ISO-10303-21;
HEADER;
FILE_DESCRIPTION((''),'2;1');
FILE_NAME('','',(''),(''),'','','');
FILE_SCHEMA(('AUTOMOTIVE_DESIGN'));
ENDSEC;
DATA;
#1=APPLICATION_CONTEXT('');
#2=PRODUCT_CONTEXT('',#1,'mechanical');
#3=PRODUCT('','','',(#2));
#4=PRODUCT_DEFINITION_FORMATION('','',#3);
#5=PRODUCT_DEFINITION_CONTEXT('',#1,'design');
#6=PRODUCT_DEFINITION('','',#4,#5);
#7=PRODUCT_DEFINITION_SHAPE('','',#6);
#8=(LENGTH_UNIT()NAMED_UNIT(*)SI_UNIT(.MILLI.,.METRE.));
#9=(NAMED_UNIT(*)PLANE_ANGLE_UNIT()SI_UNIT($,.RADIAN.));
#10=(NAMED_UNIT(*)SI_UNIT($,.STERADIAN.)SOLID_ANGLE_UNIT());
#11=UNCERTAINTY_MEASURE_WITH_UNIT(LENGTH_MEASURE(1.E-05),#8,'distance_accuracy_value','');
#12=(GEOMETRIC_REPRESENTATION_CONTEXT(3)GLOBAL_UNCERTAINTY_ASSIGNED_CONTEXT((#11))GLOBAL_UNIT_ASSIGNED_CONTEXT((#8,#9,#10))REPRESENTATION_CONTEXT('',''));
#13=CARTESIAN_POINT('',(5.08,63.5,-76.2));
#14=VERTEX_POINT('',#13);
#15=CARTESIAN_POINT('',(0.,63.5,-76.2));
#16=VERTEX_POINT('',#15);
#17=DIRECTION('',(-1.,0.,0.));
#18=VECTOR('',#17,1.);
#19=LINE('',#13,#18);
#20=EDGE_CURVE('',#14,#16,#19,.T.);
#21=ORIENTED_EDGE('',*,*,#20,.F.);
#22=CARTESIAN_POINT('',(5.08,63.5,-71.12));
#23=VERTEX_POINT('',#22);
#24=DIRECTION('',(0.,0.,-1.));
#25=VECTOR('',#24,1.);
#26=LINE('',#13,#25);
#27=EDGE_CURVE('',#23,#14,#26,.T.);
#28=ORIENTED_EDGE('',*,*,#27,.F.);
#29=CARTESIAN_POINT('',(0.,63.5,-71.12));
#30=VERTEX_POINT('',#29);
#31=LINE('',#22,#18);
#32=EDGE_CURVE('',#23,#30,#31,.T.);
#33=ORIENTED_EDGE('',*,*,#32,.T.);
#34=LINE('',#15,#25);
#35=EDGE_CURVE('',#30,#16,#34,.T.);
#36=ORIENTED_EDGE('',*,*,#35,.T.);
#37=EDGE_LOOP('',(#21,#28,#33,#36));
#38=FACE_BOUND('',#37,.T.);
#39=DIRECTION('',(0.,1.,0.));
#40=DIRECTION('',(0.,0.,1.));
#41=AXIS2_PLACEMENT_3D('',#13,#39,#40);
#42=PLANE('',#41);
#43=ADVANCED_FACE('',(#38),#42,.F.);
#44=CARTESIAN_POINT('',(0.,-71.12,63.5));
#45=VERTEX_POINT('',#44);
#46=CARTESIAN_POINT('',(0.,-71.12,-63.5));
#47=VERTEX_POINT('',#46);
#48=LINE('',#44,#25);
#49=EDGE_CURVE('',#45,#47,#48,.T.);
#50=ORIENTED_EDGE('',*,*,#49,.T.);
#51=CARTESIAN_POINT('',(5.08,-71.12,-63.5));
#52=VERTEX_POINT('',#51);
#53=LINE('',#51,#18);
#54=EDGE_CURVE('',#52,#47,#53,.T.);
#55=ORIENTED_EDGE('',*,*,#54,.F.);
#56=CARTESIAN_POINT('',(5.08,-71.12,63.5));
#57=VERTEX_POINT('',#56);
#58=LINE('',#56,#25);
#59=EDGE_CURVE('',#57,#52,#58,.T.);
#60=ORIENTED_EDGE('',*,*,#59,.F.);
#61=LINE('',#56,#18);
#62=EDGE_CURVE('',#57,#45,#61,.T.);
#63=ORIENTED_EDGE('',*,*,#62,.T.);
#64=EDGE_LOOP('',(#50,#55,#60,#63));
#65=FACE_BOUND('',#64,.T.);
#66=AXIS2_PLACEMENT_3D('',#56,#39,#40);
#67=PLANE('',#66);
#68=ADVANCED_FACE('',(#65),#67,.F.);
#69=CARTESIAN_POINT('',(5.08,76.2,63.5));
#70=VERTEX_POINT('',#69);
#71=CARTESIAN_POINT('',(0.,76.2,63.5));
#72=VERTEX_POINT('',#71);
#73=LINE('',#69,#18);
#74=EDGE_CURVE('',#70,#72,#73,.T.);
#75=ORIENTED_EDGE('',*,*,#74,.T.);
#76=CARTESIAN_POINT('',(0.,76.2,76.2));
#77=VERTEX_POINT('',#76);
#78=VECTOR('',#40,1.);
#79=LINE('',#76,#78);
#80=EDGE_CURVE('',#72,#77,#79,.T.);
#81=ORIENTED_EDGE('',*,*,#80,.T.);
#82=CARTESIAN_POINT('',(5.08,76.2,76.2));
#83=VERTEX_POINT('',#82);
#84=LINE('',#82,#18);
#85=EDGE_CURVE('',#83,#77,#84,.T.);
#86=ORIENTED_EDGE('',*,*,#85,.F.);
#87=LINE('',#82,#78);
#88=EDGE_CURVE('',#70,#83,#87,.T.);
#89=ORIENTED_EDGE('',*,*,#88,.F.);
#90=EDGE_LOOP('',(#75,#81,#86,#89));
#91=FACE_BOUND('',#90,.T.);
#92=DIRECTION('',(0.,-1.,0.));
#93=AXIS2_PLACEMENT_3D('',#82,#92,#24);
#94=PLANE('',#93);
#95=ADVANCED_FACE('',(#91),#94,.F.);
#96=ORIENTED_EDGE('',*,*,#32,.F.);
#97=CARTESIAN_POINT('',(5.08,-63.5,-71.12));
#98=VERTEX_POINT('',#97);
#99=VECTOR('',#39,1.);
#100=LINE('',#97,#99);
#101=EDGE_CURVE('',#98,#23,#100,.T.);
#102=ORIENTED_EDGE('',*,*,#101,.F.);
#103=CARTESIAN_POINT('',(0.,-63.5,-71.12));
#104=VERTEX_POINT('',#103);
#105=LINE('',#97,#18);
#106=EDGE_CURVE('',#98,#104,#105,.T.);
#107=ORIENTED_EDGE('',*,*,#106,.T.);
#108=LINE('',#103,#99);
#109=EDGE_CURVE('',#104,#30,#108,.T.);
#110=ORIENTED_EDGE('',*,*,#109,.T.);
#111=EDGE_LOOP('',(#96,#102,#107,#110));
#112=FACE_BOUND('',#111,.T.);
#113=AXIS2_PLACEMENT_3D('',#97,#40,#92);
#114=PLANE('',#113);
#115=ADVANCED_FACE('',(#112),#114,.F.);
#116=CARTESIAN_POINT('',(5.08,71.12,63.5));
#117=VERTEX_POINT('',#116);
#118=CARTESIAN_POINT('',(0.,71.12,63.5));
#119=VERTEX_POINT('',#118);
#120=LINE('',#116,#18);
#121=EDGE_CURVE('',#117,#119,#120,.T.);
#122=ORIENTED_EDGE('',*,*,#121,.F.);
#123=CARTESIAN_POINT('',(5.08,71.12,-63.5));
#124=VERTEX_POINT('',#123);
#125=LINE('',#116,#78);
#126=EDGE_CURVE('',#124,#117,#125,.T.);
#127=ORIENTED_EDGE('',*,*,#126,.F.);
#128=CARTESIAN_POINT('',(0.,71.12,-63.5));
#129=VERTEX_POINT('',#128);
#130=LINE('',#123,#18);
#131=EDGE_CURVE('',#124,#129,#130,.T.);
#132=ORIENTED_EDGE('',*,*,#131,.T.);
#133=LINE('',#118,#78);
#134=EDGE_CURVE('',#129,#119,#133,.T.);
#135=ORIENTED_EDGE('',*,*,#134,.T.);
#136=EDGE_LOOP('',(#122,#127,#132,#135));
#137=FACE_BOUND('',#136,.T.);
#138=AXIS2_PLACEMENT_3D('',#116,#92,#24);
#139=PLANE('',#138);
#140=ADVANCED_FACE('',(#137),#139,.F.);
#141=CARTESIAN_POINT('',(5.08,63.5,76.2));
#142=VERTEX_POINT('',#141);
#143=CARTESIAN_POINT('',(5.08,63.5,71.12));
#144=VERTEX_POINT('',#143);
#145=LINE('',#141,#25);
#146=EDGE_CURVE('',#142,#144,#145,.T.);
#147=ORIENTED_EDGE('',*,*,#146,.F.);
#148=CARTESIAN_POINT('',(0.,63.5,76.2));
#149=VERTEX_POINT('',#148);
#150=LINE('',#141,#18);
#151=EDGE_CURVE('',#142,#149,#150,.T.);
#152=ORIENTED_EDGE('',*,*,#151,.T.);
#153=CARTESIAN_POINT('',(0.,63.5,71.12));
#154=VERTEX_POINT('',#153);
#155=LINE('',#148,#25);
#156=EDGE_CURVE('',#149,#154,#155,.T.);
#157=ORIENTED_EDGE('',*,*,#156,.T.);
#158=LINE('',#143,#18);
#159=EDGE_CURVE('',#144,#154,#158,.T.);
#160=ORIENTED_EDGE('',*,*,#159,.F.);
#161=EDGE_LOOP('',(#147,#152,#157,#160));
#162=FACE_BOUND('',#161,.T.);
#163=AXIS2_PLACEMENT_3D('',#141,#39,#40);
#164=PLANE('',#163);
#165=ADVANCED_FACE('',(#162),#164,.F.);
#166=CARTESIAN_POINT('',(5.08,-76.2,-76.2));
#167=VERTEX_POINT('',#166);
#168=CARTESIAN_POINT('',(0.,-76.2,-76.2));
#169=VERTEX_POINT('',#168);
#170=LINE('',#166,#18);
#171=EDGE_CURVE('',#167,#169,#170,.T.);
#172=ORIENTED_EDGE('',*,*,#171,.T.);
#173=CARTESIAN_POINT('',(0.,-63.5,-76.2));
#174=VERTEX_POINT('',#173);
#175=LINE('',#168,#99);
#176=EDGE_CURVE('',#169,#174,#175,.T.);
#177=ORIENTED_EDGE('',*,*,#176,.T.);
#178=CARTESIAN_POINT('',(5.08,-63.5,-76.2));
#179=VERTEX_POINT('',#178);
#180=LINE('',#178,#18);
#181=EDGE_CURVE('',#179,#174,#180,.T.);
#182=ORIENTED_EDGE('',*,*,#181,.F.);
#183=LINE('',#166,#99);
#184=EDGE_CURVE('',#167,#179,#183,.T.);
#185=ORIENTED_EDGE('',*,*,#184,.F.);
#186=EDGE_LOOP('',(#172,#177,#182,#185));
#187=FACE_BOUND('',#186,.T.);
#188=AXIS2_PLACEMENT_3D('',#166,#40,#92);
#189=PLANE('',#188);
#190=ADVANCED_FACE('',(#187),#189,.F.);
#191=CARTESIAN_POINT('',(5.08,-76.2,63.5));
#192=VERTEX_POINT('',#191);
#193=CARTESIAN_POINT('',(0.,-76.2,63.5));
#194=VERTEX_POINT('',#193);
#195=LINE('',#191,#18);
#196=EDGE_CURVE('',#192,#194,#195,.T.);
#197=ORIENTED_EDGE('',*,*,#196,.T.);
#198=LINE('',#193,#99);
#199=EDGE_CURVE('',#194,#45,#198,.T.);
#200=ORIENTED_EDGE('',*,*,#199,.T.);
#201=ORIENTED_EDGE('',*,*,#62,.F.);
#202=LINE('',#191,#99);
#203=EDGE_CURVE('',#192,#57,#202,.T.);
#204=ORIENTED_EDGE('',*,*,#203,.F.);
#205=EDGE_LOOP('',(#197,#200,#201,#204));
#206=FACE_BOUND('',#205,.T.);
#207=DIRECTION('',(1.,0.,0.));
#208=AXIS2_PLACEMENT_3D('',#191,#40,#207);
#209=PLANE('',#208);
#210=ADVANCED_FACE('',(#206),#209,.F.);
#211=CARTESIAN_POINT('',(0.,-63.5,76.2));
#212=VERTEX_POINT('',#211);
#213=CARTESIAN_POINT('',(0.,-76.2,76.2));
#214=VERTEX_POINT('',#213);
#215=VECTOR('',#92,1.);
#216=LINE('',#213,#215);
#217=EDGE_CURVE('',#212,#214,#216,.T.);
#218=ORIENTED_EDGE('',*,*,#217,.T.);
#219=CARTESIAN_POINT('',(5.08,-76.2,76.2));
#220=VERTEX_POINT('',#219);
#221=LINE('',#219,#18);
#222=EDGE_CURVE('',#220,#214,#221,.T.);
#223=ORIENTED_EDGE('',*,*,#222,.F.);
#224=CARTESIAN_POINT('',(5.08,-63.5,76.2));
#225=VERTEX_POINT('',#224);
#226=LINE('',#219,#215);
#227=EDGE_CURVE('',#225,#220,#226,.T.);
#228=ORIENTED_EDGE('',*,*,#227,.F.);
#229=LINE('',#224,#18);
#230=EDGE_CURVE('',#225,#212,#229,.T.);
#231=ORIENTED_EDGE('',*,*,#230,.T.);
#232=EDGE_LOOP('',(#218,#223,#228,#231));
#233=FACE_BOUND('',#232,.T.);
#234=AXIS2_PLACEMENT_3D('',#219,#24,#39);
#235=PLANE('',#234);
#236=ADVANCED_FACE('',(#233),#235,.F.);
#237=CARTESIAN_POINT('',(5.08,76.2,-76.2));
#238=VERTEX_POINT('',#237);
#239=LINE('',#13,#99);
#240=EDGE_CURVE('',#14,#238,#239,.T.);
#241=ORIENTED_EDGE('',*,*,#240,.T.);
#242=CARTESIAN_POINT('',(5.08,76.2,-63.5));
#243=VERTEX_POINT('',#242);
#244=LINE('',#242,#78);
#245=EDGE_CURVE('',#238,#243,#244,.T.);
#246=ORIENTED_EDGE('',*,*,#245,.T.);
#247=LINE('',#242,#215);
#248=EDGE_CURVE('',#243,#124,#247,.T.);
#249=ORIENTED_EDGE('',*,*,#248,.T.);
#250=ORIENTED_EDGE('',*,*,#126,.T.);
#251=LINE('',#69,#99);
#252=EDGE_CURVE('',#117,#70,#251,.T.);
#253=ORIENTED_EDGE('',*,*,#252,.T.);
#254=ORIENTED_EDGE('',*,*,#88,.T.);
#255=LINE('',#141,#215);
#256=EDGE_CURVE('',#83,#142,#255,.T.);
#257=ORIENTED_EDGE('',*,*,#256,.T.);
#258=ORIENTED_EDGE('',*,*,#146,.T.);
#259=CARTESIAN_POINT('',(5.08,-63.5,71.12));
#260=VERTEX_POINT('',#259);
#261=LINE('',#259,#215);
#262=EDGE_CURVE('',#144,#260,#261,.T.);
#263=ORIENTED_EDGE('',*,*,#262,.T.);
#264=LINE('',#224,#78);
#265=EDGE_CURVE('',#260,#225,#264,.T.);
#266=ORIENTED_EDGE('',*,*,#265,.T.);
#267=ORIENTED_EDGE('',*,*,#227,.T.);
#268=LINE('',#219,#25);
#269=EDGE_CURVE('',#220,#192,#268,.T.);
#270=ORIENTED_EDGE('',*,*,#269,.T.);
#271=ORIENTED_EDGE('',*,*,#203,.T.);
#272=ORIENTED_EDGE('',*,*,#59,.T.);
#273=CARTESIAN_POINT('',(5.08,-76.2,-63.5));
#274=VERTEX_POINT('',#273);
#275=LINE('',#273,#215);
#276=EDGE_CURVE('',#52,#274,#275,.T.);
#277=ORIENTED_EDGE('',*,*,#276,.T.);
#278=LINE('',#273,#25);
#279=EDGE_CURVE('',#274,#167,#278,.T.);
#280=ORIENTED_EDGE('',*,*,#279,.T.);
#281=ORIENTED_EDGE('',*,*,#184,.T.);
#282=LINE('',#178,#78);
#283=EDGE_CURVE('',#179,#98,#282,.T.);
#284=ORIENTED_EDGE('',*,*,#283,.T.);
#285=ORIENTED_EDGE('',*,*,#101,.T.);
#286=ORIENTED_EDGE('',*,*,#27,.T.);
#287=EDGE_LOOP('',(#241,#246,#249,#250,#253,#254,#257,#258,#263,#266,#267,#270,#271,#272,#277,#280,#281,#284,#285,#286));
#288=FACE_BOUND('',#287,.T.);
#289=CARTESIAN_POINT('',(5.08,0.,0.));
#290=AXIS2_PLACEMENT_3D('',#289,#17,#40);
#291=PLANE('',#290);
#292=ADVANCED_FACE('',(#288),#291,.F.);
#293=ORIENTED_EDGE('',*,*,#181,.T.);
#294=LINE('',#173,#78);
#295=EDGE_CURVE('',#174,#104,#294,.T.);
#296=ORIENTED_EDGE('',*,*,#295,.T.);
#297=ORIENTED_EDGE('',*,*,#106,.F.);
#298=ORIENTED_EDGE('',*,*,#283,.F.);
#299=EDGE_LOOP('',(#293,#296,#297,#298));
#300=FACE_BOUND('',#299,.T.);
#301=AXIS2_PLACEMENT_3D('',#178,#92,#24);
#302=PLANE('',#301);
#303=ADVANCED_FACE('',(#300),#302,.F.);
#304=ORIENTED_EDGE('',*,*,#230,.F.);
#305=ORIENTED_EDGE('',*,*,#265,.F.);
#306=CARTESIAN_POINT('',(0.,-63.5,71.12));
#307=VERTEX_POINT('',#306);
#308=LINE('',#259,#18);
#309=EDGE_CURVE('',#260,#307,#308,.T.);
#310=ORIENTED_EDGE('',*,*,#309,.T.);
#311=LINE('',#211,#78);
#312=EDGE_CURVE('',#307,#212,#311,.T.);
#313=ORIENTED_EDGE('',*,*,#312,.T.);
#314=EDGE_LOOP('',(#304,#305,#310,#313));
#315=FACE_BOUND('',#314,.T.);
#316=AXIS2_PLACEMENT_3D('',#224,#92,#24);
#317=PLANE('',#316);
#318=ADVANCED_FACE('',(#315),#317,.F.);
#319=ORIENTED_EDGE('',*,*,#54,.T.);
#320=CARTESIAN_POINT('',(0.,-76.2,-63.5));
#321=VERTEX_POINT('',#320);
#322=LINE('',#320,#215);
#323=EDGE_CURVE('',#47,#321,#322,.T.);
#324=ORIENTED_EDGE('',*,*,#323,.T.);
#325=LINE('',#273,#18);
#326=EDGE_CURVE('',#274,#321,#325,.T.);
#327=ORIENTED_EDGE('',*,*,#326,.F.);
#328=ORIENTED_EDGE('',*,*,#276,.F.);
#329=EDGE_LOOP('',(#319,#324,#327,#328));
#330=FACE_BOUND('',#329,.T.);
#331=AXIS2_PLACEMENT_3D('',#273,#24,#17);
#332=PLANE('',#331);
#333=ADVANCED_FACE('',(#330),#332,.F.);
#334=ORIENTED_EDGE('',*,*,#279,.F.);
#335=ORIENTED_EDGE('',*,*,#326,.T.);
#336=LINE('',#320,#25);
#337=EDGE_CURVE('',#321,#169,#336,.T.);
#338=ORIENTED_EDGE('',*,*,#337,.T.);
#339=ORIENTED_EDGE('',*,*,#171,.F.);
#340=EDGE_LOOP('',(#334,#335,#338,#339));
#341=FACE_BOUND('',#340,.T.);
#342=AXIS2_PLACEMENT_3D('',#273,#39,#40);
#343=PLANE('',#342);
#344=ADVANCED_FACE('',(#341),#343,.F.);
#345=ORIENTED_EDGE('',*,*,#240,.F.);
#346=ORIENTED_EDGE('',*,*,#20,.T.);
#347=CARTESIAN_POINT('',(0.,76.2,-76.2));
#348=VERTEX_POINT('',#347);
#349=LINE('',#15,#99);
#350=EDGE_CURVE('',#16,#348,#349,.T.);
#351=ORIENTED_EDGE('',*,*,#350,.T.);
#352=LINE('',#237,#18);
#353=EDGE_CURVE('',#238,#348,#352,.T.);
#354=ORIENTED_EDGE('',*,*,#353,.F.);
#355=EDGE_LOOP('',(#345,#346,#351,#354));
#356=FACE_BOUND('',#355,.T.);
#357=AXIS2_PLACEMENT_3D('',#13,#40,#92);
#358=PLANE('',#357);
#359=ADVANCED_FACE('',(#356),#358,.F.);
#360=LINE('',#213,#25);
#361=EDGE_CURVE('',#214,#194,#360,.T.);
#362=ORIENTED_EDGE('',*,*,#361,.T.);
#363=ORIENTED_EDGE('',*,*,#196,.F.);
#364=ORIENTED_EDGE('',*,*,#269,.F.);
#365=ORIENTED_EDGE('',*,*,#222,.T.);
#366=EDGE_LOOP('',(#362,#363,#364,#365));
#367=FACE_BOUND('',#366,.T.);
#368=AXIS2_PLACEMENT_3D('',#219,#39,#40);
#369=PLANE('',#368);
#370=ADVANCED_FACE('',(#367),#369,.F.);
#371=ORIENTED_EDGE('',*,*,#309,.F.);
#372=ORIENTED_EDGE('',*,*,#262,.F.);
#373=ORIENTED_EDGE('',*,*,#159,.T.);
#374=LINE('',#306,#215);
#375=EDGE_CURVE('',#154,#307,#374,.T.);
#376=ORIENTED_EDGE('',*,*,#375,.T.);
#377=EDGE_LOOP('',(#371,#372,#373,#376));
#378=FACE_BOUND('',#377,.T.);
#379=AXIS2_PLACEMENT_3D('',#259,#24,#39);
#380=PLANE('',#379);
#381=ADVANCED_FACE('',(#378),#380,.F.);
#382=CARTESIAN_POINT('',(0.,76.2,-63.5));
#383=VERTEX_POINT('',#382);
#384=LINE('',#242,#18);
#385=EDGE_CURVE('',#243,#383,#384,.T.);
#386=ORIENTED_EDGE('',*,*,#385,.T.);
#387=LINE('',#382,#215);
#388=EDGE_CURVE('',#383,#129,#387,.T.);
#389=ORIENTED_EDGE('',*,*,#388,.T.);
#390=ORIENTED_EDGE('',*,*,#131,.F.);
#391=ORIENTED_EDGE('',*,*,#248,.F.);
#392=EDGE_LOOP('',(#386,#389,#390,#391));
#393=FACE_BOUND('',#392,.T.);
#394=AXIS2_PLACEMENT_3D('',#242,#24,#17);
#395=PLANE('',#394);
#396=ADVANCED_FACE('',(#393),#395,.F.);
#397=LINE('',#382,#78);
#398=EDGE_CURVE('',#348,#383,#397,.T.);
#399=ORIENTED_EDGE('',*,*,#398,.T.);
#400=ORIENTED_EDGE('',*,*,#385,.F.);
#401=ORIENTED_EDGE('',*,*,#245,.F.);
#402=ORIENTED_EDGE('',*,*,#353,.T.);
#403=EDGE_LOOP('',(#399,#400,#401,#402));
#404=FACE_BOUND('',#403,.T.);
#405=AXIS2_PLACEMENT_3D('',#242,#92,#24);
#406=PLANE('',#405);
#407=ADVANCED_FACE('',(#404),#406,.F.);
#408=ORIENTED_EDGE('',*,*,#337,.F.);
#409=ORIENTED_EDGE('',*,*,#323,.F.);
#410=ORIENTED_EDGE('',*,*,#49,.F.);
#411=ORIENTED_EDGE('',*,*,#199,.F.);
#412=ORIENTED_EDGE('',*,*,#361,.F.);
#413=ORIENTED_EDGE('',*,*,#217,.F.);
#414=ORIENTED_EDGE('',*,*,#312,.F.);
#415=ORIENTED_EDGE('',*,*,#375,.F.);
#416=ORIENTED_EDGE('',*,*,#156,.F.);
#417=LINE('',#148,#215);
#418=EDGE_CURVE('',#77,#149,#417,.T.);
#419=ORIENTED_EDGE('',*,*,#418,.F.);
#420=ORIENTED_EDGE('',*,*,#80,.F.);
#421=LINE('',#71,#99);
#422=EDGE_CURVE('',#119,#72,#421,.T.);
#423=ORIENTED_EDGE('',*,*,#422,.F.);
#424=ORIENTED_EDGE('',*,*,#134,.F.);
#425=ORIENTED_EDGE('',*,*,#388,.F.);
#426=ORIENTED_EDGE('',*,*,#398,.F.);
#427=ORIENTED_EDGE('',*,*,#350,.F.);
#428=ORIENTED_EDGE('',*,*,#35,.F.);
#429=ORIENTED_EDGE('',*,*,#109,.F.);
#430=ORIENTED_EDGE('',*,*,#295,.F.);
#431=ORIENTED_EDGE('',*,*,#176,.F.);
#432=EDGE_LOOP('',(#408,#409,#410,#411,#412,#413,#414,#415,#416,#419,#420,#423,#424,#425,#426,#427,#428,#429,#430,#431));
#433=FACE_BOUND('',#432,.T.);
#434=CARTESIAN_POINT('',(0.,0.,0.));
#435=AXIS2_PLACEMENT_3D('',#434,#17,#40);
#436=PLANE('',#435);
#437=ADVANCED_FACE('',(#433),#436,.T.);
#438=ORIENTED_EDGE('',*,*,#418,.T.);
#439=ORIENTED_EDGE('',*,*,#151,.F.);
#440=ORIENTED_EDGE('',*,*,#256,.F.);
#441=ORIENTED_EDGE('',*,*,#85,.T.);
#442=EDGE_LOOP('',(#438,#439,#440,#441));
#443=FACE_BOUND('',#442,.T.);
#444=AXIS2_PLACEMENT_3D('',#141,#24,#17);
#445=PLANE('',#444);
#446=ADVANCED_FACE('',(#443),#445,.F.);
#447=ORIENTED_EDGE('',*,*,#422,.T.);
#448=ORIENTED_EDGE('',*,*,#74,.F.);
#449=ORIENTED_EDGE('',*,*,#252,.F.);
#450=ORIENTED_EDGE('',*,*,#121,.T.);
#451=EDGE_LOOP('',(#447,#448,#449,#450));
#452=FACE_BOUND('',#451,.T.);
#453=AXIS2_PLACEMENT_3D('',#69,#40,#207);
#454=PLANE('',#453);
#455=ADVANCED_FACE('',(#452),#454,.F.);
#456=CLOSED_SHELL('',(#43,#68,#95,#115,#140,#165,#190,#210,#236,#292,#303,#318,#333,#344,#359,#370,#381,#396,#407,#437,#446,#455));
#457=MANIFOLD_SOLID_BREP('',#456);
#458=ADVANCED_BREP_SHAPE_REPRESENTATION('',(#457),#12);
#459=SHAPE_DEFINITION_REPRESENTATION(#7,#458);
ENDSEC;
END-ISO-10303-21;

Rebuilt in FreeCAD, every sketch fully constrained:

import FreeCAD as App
import Part
import Sketcher
Q = App.Units.Quantity

doc = App.newDocument("Part")
body = doc.addObject("PartDesign::Body", "Body")

# Sketch on YZ plane
sketch1 = body.newObject("Sketcher::SketchObject", "Sketch")
sketch1.AttachmentSupport = (doc.getObject("YZ_Plane"), [""])
sketch1.MapMode = "FlatFace"
sketch1.addGeometry([
    Part.LineSegment(App.Vector(71.12, -63.5, 0), App.Vector(71.12, 63.5, 0)),  # 0
    Part.LineSegment(App.Vector(71.12, 63.5, 0), App.Vector(76.2, 63.5, 0)),  # 1
    Part.LineSegment(App.Vector(76.2, 63.5, 0), App.Vector(76.2, 76.2, 0)),  # 2
    Part.LineSegment(App.Vector(76.2, 76.2, 0), App.Vector(63.5, 76.2, 0)),  # 3
    Part.LineSegment(App.Vector(63.5, 76.2, 0), App.Vector(63.5, 71.12, 0)),  # 4
    Part.LineSegment(App.Vector(63.5, 71.12, 0), App.Vector(-63.5, 71.12, 0)),  # 5
    Part.LineSegment(App.Vector(-63.5, 71.12, 0), App.Vector(-63.5, 76.2, 0)),  # 6
    Part.LineSegment(App.Vector(-63.5, 76.2, 0), App.Vector(-76.2, 76.2, 0)),  # 7
    Part.LineSegment(App.Vector(-76.2, 76.2, 0), App.Vector(-76.2, 63.5, 0)),  # 8
    Part.LineSegment(App.Vector(-76.2, 63.5, 0), App.Vector(-71.12, 63.5, 0)),  # 9
    Part.LineSegment(App.Vector(-71.12, 63.5, 0), App.Vector(-71.12, -63.5, 0)),  # 10
    Part.LineSegment(App.Vector(-71.12, -63.5, 0), App.Vector(-76.2, -63.5, 0)),  # 11
    Part.LineSegment(App.Vector(-76.2, -63.5, 0), App.Vector(-76.2, -76.2, 0)),  # 12
    Part.LineSegment(App.Vector(-76.2, -76.2, 0), App.Vector(-63.5, -76.2, 0)),  # 13
    Part.LineSegment(App.Vector(-63.5, -76.2, 0), App.Vector(-63.5, -71.12, 0)),  # 14
    Part.LineSegment(App.Vector(-63.5, -71.12, 0), App.Vector(63.5, -71.12, 0)),  # 15
    Part.LineSegment(App.Vector(63.5, -71.12, 0), App.Vector(63.5, -76.2, 0)),  # 16
    Part.LineSegment(App.Vector(63.5, -76.2, 0), App.Vector(76.2, -76.2, 0)),  # 17
    Part.LineSegment(App.Vector(76.2, -76.2, 0), App.Vector(76.2, -63.5, 0)),  # 18
    Part.LineSegment(App.Vector(76.2, -63.5, 0), App.Vector(71.12, -63.5, 0)),  # 19
], False)
sketch1.addConstraint([
    Sketcher.Constraint("Coincident", 0, 2, 1, 1),
    Sketcher.Constraint("Coincident", 1, 2, 2, 1),
    Sketcher.Constraint("Coincident", 2, 2, 3, 1),
    Sketcher.Constraint("Coincident", 3, 2, 4, 1),
    Sketcher.Constraint("Coincident", 4, 2, 5, 1),
    Sketcher.Constraint("Coincident", 5, 2, 6, 1),
    Sketcher.Constraint("Coincident", 6, 2, 7, 1),
    Sketcher.Constraint("Coincident", 7, 2, 8, 1),
    Sketcher.Constraint("Coincident", 8, 2, 9, 1),
    Sketcher.Constraint("Coincident", 9, 2, 10, 1),
    Sketcher.Constraint("Coincident", 10, 2, 11, 1),
    Sketcher.Constraint("Coincident", 11, 2, 12, 1),
    Sketcher.Constraint("Coincident", 12, 2, 13, 1),
    Sketcher.Constraint("Coincident", 13, 2, 14, 1),
    Sketcher.Constraint("Coincident", 14, 2, 15, 1),
    Sketcher.Constraint("Coincident", 15, 2, 16, 1),
    Sketcher.Constraint("Coincident", 16, 2, 17, 1),
    Sketcher.Constraint("Coincident", 17, 2, 18, 1),
    Sketcher.Constraint("Coincident", 18, 2, 19, 1),
    Sketcher.Constraint("Coincident", 19, 2, 0, 1),
    Sketcher.Constraint("Vertical", 0),
    Sketcher.Constraint("Horizontal", 1),
    Sketcher.Constraint("Vertical", 2),
    Sketcher.Constraint("Horizontal", 3),
    Sketcher.Constraint("Vertical", 4),
    Sketcher.Constraint("Horizontal", 5),
    Sketcher.Constraint("Vertical", 6),
    Sketcher.Constraint("Horizontal", 7),
    Sketcher.Constraint("Vertical", 8),
    Sketcher.Constraint("Horizontal", 9),
    Sketcher.Constraint("Vertical", 10),
    Sketcher.Constraint("Horizontal", 11),
    Sketcher.Constraint("Vertical", 12),
    Sketcher.Constraint("Horizontal", 13),
    Sketcher.Constraint("Vertical", 14),
    Sketcher.Constraint("Horizontal", 15),
    Sketcher.Constraint("Vertical", 16),
    Sketcher.Constraint("Horizontal", 17),
    Sketcher.Constraint("Vertical", 18),
    Sketcher.Constraint("Horizontal", 19),
    Sketcher.Constraint("Symmetric", 0, 2, 10, 2, -1, 1),
    Sketcher.Constraint("Symmetric", 2, 2, 12, 2, -1, 1),
    Sketcher.Constraint("Symmetric", 4, 2, 14, 2, -1, 1),
    Sketcher.Constraint("Symmetric", 6, 2, 16, 2, -1, 1),
    Sketcher.Constraint("Symmetric", 8, 2, 18, 2, -1, 1),
    Sketcher.Constraint("Symmetric", 3, 2, 6, 2, -2),
    Sketcher.Constraint("Symmetric", 1, 2, 8, 2, -2),
    Sketcher.Constraint("Equal", 15, 0),
    Sketcher.Constraint("Equal", 17, 2),
    Sketcher.Constraint("Equal", 19, 4),
    Sketcher.Constraint("DistanceX", 5, 2, 5, 1, Q("5 in")),
    Sketcher.Constraint("DistanceX", 1, 1, 1, 2, Q("0.2 in")),
    Sketcher.Constraint("DistanceX", 3, 2, 3, 1, Q("0.5 in")),
])
pad1 = body.newObject("PartDesign::Pad", "Pad")
pad1.Profile = sketch1
pad1.Length = Q("0.2 in")

doc.recompute()
